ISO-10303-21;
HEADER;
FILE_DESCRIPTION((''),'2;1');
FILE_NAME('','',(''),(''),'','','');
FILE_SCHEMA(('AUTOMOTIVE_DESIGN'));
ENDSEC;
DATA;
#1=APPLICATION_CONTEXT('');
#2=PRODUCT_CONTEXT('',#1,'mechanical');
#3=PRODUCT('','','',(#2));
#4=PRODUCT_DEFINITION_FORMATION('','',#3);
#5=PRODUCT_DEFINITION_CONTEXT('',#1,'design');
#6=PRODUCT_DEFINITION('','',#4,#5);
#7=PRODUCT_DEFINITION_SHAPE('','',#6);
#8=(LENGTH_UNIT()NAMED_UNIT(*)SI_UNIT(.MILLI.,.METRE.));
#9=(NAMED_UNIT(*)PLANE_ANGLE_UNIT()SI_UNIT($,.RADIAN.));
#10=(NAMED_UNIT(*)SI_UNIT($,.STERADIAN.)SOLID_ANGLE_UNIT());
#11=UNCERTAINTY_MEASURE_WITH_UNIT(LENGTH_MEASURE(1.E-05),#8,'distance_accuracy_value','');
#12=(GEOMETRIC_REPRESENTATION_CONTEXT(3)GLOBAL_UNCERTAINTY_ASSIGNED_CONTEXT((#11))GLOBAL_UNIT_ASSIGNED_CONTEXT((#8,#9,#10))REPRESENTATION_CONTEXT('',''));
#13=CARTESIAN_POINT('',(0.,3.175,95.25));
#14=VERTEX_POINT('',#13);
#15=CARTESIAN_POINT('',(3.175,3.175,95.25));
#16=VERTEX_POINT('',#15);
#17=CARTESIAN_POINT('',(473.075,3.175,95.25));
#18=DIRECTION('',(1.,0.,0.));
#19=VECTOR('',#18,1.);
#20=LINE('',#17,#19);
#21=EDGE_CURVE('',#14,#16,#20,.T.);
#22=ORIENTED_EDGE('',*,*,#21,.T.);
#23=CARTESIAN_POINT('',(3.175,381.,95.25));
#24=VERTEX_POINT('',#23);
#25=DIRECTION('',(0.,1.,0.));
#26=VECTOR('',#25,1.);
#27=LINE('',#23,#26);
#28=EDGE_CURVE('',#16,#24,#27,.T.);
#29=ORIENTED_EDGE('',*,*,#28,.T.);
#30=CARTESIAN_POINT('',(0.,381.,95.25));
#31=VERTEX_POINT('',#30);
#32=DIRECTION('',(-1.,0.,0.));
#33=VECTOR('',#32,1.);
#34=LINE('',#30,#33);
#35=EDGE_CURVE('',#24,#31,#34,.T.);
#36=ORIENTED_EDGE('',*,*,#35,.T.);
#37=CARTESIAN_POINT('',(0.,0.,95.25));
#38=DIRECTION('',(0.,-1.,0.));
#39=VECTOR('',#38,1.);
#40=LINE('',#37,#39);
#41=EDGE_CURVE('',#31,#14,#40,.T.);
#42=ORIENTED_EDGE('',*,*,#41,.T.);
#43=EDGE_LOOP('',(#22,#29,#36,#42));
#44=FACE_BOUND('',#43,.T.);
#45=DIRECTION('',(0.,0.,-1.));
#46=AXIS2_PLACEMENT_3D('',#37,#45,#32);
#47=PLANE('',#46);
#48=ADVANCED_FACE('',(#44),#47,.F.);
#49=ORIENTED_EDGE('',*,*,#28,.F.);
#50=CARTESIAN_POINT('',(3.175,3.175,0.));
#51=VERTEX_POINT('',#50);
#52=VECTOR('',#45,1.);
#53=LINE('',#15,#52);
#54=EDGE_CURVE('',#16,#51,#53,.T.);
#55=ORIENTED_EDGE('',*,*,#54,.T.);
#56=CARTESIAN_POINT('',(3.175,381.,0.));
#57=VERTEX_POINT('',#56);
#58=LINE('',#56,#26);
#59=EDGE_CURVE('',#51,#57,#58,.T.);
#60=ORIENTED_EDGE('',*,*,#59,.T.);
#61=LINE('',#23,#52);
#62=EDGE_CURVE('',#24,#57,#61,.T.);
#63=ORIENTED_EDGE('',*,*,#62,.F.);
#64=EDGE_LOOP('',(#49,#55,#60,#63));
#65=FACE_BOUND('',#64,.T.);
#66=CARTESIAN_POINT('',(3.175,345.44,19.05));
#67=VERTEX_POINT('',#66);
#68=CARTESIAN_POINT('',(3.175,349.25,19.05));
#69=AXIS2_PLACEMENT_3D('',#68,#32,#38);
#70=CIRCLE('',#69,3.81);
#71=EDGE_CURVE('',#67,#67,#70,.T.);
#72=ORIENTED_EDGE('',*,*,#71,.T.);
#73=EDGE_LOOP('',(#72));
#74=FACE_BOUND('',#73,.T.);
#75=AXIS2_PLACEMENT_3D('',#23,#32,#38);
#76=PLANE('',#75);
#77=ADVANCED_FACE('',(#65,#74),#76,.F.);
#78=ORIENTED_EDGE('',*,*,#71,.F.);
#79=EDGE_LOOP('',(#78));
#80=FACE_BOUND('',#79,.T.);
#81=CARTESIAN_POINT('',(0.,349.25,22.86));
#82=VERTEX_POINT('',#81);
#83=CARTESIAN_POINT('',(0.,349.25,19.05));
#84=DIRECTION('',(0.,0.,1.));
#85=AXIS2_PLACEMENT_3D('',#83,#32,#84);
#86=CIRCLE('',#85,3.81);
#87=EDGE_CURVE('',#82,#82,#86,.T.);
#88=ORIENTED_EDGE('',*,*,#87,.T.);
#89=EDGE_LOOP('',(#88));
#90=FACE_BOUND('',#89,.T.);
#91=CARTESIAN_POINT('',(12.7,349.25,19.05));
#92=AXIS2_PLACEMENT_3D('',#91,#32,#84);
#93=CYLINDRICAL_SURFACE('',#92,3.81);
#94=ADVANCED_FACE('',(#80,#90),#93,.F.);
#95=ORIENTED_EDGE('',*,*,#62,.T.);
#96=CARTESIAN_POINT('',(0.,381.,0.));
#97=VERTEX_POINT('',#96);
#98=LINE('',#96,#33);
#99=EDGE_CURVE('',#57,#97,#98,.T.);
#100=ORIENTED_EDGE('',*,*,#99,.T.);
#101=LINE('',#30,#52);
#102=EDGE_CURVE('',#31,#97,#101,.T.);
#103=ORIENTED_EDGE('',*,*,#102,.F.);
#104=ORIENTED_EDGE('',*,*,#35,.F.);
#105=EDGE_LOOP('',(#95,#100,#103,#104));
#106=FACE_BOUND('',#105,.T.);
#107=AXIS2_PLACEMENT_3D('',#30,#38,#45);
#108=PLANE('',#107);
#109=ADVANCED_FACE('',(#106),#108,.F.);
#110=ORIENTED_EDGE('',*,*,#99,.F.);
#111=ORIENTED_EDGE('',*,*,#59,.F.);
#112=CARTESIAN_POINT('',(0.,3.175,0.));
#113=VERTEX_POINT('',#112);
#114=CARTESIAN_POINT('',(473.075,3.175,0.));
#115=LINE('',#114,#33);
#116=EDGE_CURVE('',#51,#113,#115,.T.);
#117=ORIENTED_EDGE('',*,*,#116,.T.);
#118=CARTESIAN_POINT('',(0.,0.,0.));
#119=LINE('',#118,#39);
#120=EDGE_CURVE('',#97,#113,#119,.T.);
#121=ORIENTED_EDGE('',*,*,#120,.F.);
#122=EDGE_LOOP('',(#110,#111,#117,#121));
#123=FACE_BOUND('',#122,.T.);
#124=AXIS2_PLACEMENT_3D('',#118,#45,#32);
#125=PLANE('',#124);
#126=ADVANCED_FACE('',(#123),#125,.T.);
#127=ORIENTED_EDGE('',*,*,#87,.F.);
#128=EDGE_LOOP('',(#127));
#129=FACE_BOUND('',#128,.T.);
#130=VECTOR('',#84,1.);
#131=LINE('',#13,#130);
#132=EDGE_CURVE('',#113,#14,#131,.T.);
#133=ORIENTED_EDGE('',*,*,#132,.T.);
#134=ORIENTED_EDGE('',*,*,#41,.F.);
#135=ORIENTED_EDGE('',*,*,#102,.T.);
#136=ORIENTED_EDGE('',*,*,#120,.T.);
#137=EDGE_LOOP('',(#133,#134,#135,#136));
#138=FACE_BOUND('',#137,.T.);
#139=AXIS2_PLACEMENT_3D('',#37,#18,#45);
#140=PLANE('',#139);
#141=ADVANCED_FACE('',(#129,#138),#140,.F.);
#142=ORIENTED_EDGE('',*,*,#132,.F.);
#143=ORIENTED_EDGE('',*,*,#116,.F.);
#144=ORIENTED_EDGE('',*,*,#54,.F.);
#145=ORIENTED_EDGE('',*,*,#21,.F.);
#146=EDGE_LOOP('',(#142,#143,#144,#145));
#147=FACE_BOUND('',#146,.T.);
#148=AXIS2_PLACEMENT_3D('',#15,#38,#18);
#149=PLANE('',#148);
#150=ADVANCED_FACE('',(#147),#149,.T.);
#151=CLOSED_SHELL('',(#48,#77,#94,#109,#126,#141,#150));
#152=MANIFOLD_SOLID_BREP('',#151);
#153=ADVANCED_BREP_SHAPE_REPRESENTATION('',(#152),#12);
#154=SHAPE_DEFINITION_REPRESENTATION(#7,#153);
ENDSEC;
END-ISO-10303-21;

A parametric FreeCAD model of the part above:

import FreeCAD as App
import Part
import Sketcher
from FreeCAD import Vector
Q = App.Units.Quantity

doc = App.newDocument("Part")
params = doc.addObject("Spreadsheet::Sheet", "Params")
for row, (alias, value) in enumerate([
    ("sketch1_height", "15 in"),
    ("sketch1_width", "18.5 in"),
    ("sketch1_width2", "18.625 in"),
    ("pad1_length", "3.75 in"),
    ("sketch2_diameter", "0.25 in"),
    ("pocket1_length", "6 in"),
    ("sketch3_diameter", "0.3 in"),
    ("sketch3_diameter2", "2.75 in"),
    ("pocket2_length", "15 in"),
    ("sketch4_diameter", "0.3 in"),
    ("pocket3_length", "0.5 in"),
    ("sketch5_height", "3.75 in"),
    ("sketch5_width", "18.625 in"),
    ("pocket4_length", "0.125 in"),
], start=1):
    params.set(f"A{row}", alias)
    params.set(f"B{row}", "=" + value)
    params.setAlias(f"B{row}", alias)

body = doc.addObject("PartDesign::Body", "Body")

# Sketch on XY plane
sketch1 = body.newObject("Sketcher::SketchObject", "Sketch")
sketch1.AttachmentSupport = (doc.getObject("XY_Plane"), [""])
sketch1.MapMode = "FlatFace"
sketch1.addGeometry([
    Part.LineSegment(Vector(0, 381, 0), Vector(0, 0, 0)),  # 0
    Part.LineSegment(Vector(0, 0, 0), Vector(473.1, 0, 0)),  # 1
    Part.LineSegment(Vector(473.1, 0, 0), Vector(473.1, 3.2, 0)),  # 2
    Part.LineSegment(Vector(473.1, 3.2, 0), Vector(3.2, 3.2, 0)),  # 3
    Part.LineSegment(Vector(3.2, 3.2, 0), Vector(3.2, 381, 0)),  # 4
    Part.LineSegment(Vector(3.2, 381, 0), Vector(0, 381, 0)),  # 5
], False)
sketch1.addConstraint([
    Sketcher.Constraint("Coincident", 0, 2, 1, 1),
    Sketcher.Constraint("Coincident", 1, 2, 2, 1),
    Sketcher.Constraint("Coincident", 2, 2, 3, 1),
    Sketcher.Constraint("Coincident", 3, 2, 4, 1),
    Sketcher.Constraint("Coincident", 4, 2, 5, 1),
    Sketcher.Constraint("Coincident", 5, 2, 0, 1),
    Sketcher.Constraint("Vertical", 0),
    Sketcher.Constraint("Horizontal", 1),
    Sketcher.Constraint("Vertical", 2),
    Sketcher.Constraint("Horizontal", 3),
    Sketcher.Constraint("Vertical", 4),
    Sketcher.Constraint("Horizontal", 5),
    Sketcher.Constraint("Coincident", 0, 2, -1, 1),
    Sketcher.Constraint("Equal", 5, 2),
    Sketcher.Constraint("DistanceY", 0, 2, 0, 1, Q("15 in")),
    Sketcher.Constraint("DistanceX", 3, 2, 3, 1, Q("18.5 in")),
    Sketcher.Constraint("DistanceX", 1, 1, 1, 2, Q("18.625 in")),
])
sketch1.setExpression("Constraints[14]", "Params.sketch1_height")
sketch1.setExpression("Constraints[15]", "Params.sketch1_width")
sketch1.setExpression("Constraints[16]", "Params.sketch1_width2")
pad1 = body.newObject("PartDesign::Pad", "Pad")
pad1.Profile = sketch1
pad1.setExpression("Length", "Params.pad1_length")

# Sketch on XZ plane
sketch2 = body.newObject("Sketcher::SketchObject", "Sketch001")
sketch2.AttachmentSupport = (doc.getObject("XZ_Plane"), [""])
sketch2.MapMode = "FlatFace"
sketch2.AttachmentOffset = App.Placement(Vector(0, 0, -0.125 * 25.4), App.Rotation())
sketch2.addGeometry([
    Part.Circle(Vector(190.1, 4.6, 0), Vector(0, 0, 1), 3.2),  # 0
    Part.Circle(Vector(190.1, 76.2, 0), Vector(0, 0, 1), 3.2),  # 1
    Part.Circle(Vector(261.7, 4.6, 0), Vector(0, 0, 1), 3.2),  # 2
    Part.Circle(Vector(261.7, 76.2, 0), Vector(0, 0, 1), 3.2),  # 3
    Part.Circle(Vector(295.8, 76.2, 0), Vector(0, 0, 1), 3.2),  # 4
    Part.Circle(Vector(295.8, 4.6, 0), Vector(0, 0, 1), 3.2),  # 5
    Part.Circle(Vector(367.4, 76.2, 0), Vector(0, 0, 1), 3.2),  # 6
    Part.Circle(Vector(367.4, 4.6, 0), Vector(0, 0, 1), 3.2),  # 7
], False)
sketch2.addConstraint([
    Sketcher.Constraint("Equal", 0, 1),
    Sketcher.Constraint("Equal", 1, 2),
    Sketcher.Constraint("Equal", 2, 3),
    Sketcher.Constraint("Equal", 3, 4),
    Sketcher.Constraint("Equal", 4, 5),
    Sketcher.Constraint("Equal", 5, 6),
    Sketcher.Constraint("Equal", 6, 7),
    Sketcher.Constraint("Horizontal", 0, 3, 2, 3),
    Sketcher.Constraint("Horizontal", 1, 3, 3, 3),
    Sketcher.Constraint("Horizontal", 3, 3, 4, 3),
    Sketcher.Constraint("Horizontal", 2, 3, 5, 3),
    Sketcher.Constraint("Horizontal", 4, 3, 6, 3),
    Sketcher.Constraint("Horizontal", 5, 3, 7, 3),
    Sketcher.Constraint("Vertical", 0, 3, 1, 3),
    Sketcher.Constraint("Vertical", 2, 3, 3, 3),
    Sketcher.Constraint("Vertical", 4, 3, 5, 3),
    Sketcher.Constraint("Vertical", 6, 3, 7, 3),
    Sketcher.Constraint("Diameter", 0, Q("0.25 in")),
    Sketcher.Constraint("DistanceY", -1, 1, 1, 3, Q("3 in")),
    Sketcher.Constraint("DistanceY", -1, 1, 0, 3, Q("0.18 in")),
    Sketcher.Constraint("DistanceX", 0, 3, 2, 3, Q("2.82 in")),
    Sketcher.Constraint("DistanceX", 3, 3, 4, 3, Q("1.34 in")),
    Sketcher.Constraint("DistanceX", 4, 3, 6, 3, Q("2.82 in")),
    Sketcher.Constraint("DistanceX", -1, 1, 0, 3, Q("7.485 in")),
])
sketch2.setExpression("Constraints[17]", "Params.sketch2_diameter")
pocket1 = body.newObject("PartDesign::Pocket", "Pocket")
pocket1.Profile = sketch2
pocket1.setExpression("Length", "Params.pocket1_length")
pocket1.Reversed = True

# Sketch on XZ plane
sketch3 = body.newObject("Sketcher::SketchObject", "Sketch002")
sketch3.AttachmentSupport = (doc.getObject("XZ_Plane"), [""])
sketch3.MapMode = "FlatFace"
sketch3.addGeometry([
    Part.Circle(Vector(225.9, 40.4, 0), Vector(0, 0, 1), 34.9),
    Part.Circle(Vector(331.6, 40.4, 0), Vector(0, 0, 1), 34.9),
    Part.Circle(Vector(390.5, 19.1, 0), Vector(0, 0, 1), 3.8),
], False)
sketch3.addConstraint([
    Sketcher.Constraint("Equal", 0, 1),
    Sketcher.Constraint("Horizontal", 0, 3, 1, 3),
    Sketcher.Constraint("Diameter", 2, Q("0.3 in")),
    Sketcher.Constraint("Diameter", 0, Q("2.75 in")),
    Sketcher.Constraint("DistanceY", -1, 1, 0, 3, Q("1.59 in")),
    Sketcher.Constraint("DistanceY", -1, 1, 2, 3, Q("0.75 in")),
    Sketcher.Constraint("DistanceX", 0, 3, 1, 3, Q("4.16 in")),
    Sketcher.Constraint("DistanceX", 1, 3, 2, 3, Q("2.32 in")),
    Sketcher.Constraint("DistanceX", -1, 1, 0, 3, Q("8.895 in")),
])
sketch3.setExpression("Constraints[2]", "Params.sketch3_diameter")
sketch3.setExpression("Constraints[3]", "Params.sketch3_diameter2")
pocket2 = body.newObject("PartDesign::Pocket", "Pocket001")
pocket2.Profile = sketch3
pocket2.setExpression("Length", "Params.pocket2_length")

# Sketch on YZ plane
sketch4 = body.newObject("Sketcher::SketchObject", "Sketch003")
sketch4.AttachmentSupport = (doc.getObject("YZ_Plane"), [""])
sketch4.MapMode = "FlatFace"
sketch4.addGeometry(Part.Circle(Vector(349.2, 19.1, 0), Vector(0, 0, 1), 3.8), False)
sketch4.addConstraint([
    Sketcher.Constraint("Diameter", 0, Q("0.3 in")),
    Sketcher.Constraint("DistanceX", -1, 1, 0, 3, Q("13.75 in")),
    Sketcher.Constraint("DistanceY", -1, 1, 0, 3, Q("0.75 in")),
])
sketch4.setExpression("Constraints[0]", "Params.sketch4_diameter")
pocket3 = body.newObject("PartDesign::Pocket", "Pocket002")
pocket3.Profile = sketch4
pocket3.setExpression("Length", "Params.pocket3_length")
pocket3.Reversed = True

# Sketch on XZ plane
sketch5 = body.newObject("Sketcher::SketchObject", "Sketch004")
sketch5.AttachmentSupport = (doc.getObject("XZ_Plane"), [""])
sketch5.MapMode = "FlatFace"
sketch5.addGeometry([
    Part.LineSegment(Vector(0, 95, 0), Vector(0, 0, 0)),
    Part.LineSegment(Vector(0, 0, 0), Vector(473, 0, 0)),
    Part.LineSegment(Vector(473, 0, 0), Vector(473, 95, 0)),
    Part.LineSegment(Vector(473, 95, 0), Vector(0, 95, 0)),
], False)
sketch5.addConstraint([
    Sketcher.Constraint("Coincident", 0, 2, 1, 1),
    Sketcher.Constraint("Coincident", 1, 2, 2, 1),
    Sketcher.Constraint("Coincident", 2, 2, 3, 1),
    Sketcher.Constraint("Coincident", 3, 2, 0, 1),
    Sketcher.Constraint("Vertical", 0),
    Sketcher.Constraint("Horizontal", 1),
    Sketcher.Constraint("Vertical", 2),
    Sketcher.Constraint("Horizontal", 3),
    Sketcher.Constraint("Coincident", 0, 2, -1, 1),
    Sketcher.Constraint("DistanceY", 0, 2, 0, 1, Q("3.75 in")),
    Sketcher.Constraint("DistanceX", 1, 1, 1, 2, Q("18.625 in")),
])
sketch5.setExpression("Constraints[9]", "Params.sketch5_height")
sketch5.setExpression("Constraints[10]", "Params.sketch5_width")
pocket4 = body.newObject("PartDesign::Pocket", "Pocket003")
pocket4.Profile = sketch5
pocket4.setExpression("Length", "Params.pocket4_length")

doc.recompute()
